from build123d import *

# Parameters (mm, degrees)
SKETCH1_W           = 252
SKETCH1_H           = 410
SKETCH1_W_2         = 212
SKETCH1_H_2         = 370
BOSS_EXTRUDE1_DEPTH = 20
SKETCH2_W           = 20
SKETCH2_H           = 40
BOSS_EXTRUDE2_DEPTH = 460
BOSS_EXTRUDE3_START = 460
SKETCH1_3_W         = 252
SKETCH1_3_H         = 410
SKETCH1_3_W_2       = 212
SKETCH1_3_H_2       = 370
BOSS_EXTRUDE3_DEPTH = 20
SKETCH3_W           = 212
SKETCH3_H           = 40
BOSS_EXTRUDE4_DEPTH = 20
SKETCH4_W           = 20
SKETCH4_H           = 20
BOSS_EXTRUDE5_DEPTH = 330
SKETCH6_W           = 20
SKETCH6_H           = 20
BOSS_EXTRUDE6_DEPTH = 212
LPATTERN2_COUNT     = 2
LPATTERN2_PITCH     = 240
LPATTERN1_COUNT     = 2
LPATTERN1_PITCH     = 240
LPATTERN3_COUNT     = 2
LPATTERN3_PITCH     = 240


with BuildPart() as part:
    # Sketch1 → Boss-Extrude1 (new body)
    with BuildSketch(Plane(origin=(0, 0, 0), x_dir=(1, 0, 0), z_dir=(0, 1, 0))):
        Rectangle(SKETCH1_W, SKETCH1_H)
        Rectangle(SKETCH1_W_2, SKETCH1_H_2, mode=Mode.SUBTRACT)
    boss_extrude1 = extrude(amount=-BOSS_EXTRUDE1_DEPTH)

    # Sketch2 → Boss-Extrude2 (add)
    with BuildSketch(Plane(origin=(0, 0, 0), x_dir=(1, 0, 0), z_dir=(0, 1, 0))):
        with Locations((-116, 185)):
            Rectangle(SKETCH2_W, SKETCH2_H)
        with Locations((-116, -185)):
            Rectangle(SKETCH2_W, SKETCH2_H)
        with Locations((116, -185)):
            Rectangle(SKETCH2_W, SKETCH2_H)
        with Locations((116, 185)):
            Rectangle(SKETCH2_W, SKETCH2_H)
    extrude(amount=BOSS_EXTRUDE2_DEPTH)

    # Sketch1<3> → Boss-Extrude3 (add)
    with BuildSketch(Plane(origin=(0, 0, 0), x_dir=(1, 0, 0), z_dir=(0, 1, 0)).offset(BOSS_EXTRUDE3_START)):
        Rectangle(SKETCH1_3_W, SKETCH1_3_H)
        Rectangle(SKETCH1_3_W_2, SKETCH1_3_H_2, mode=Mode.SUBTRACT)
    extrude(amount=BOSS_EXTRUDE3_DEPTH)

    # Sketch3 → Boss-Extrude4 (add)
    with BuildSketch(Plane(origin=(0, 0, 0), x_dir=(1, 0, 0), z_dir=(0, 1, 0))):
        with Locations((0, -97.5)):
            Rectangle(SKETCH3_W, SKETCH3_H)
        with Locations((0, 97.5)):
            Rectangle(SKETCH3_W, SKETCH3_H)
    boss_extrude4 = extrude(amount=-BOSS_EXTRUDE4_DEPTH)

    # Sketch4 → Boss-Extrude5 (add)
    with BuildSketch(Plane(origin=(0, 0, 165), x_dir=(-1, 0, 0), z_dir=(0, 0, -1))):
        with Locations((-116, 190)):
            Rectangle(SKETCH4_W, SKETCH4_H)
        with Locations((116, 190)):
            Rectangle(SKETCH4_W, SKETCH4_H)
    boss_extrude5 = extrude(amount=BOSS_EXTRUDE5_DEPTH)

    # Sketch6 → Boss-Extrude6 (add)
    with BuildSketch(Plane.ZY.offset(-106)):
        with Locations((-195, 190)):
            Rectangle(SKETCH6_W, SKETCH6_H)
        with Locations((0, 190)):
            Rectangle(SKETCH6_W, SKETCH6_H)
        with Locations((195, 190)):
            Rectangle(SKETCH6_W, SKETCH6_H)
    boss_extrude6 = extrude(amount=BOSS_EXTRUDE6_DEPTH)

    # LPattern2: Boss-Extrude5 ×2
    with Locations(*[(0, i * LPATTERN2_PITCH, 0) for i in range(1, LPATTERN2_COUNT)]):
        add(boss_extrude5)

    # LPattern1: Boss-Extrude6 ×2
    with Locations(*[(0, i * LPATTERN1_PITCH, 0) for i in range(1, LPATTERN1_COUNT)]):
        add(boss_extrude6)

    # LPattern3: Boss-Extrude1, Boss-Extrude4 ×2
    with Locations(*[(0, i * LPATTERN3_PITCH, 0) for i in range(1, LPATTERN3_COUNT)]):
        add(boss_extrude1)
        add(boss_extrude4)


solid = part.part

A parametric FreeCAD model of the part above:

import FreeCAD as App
import Part
import Sketcher

doc = App.newDocument("Part")
params = doc.addObject("Spreadsheet::Sheet", "Params")
for row, (alias, value) in enumerate([
    ("sketch1_width", "252 mm"),
    ("sketch1_width2", "212 mm"),
    ("sketch1_height", "410 mm"),
    ("sketch1_height2", "370 mm"),
    ("pad1_length", "20 mm"),
    ("sketch2_width", "20 mm"),
    ("sketch2_height", "40 mm"),
    ("pad2_length", "460 mm"),
    ("sketch3_width", "252 mm"),
    ("sketch3_width2", "212 mm"),
    ("sketch3_height", "410 mm"),
    ("sketch3_height2", "370 mm"),
    ("pad3_length", "20 mm"),
    ("sketch4_width", "212 mm"),
    ("sketch4_height", "40 mm"),
    ("pad4_length", "20 mm"),
    ("sketch5_width", "20 mm"),
    ("pad5_length", "330 mm"),
    ("sketch6_width", "20 mm"),
    ("pad6_length", "212 mm"),
    ("linearpattern_pitch", "240 mm"),
    ("linearpattern2_pitch", "240 mm"),
    ("linearpattern3_pitch", "240 mm"),
], start=1):
    params.set(f"A{row}", alias)
    params.set(f"B{row}", "=" + value)
    params.setAlias(f"B{row}", alias)

body = doc.addObject("PartDesign::Body", "Body")

# Sketch on XZ plane
sketch1 = doc.addObject("Sketcher::SketchObject", "Sketch")
body.addObject(sketch1)
sketch1.AttachmentSupport = (doc.XZ_Plane, [""])
sketch1.MapMode = "FlatFace"
sketch1.addGeometry(Part.LineSegment(App.Vector(-126, -205, 0), App.Vector(-126, 205, 0)), False)
sketch1.addGeometry(Part.LineSegment(App.Vector(-126, 205, 0), App.Vector(126, 205, 0)), False)
sketch1.addGeometry(Part.LineSegment(App.Vector(126, 205, 0), App.Vector(126, -205, 0)), False)
sketch1.addGeometry(Part.LineSegment(App.Vector(126, -205, 0), App.Vector(-126, -205, 0)), False)
sketch1.addGeometry(Part.LineSegment(App.Vector(106, 185, 0), App.Vector(-106, 185, 0)), False)
sketch1.addGeometry(Part.LineSegment(App.Vector(-106, 185, 0), App.Vector(-106, -185, 0)), False)
sketch1.addGeometry(Part.LineSegment(App.Vector(-106, -185, 0), App.Vector(106, -185, 0)), False)
sketch1.addGeometry(Part.LineSegment(App.Vector(106, -185, 0), App.Vector(106, 185, 0)), False)
sketch1.addConstraint(Sketcher.Constraint("Coincident", 0, 2, 1, 1))
sketch1.addConstraint(Sketcher.Constraint("Coincident", 1, 2, 2, 1))
sketch1.addConstraint(Sketcher.Constraint("Coincident", 2, 2, 3, 1))
sketch1.addConstraint(Sketcher.Constraint("Coincident", 3, 2, 0, 1))
sketch1.addConstraint(Sketcher.Constraint("Coincident", 4, 2, 5, 1))
sketch1.addConstraint(Sketcher.Constraint("Coincident", 5, 2, 6, 1))
sketch1.addConstraint(Sketcher.Constraint("Coincident", 6, 2, 7, 1))
sketch1.addConstraint(Sketcher.Constraint("Coincident", 7, 2, 4, 1))
sketch1.addConstraint(Sketcher.Constraint("Vertical", 0))
sketch1.addConstraint(Sketcher.Constraint("Horizontal", 1))
sketch1.addConstraint(Sketcher.Constraint("Vertical", 2))
sketch1.addConstraint(Sketcher.Constraint("Horizontal", 3))
sketch1.addConstraint(Sketcher.Constraint("Horizontal", 4))
sketch1.addConstraint(Sketcher.Constraint("Vertical", 5))
sketch1.addConstraint(Sketcher.Constraint("Horizontal", 6))
sketch1.addConstraint(Sketcher.Constraint("Vertical", 7))
sketch1.addConstraint(Sketcher.Constraint("Symmetric", 0, 2, 2, 2, -1, 1))
sketch1.addConstraint(Sketcher.Constraint("Symmetric", 4, 2, 6, 2, -1, 1))
sketch1.addConstraint(Sketcher.Constraint("DistanceX", 1, 1, 1, 2, 252.0))
sketch1.addConstraint(Sketcher.Constraint("DistanceX", 4, 2, 4, 1, 212.0))
sketch1.addConstraint(Sketcher.Constraint("DistanceY", 0, 1, 0, 2, 410.0))
sketch1.addConstraint(Sketcher.Constraint("DistanceY", 5, 2, 5, 1, 370.0))
sketch1.setExpression("Constraints[18]", "Params.sketch1_width")
sketch1.setExpression("Constraints[19]", "Params.sketch1_width2")
sketch1.setExpression("Constraints[20]", "Params.sketch1_height")
sketch1.setExpression("Constraints[21]", "Params.sketch1_height2")
pad1 = doc.addObject("PartDesign::Pad", "Pad")
body.addObject(pad1)
pad1.Profile = sketch1
pad1.setExpression("Length", "Params.pad1_length")

# Sketch on XZ plane
sketch2 = doc.addObject("Sketcher::SketchObject", "Sketch001")
body.addObject(sketch2)
sketch2.AttachmentSupport = (doc.XZ_Plane, [""])
sketch2.MapMode = "FlatFace"
sketch2.addGeometry(Part.LineSegment(App.Vector(-126, -205, 0), App.Vector(-126, -165, 0)), False)
sketch2.addGeometry(Part.LineSegment(App.Vector(-126, -165, 0), App.Vector(-106, -165, 0)), False)
sketch2.addGeometry(Part.LineSegment(App.Vector(-106, -165, 0), App.Vector(-106, -205, 0)), False)
sketch2.addGeometry(Part.LineSegment(App.Vector(-106, -205, 0), App.Vector(-126, -205, 0)), False)
sketch2.addGeometry(Part.LineSegment(App.Vector(-126, 165, 0), App.Vector(-126, 205, 0)), False)
sketch2.addGeometry(Part.LineSegment(App.Vector(-126, 205, 0), App.Vector(-106, 205, 0)), False)
sketch2.addGeometry(Part.LineSegment(App.Vector(-106, 205, 0), App.Vector(-106, 165, 0)), False)
sketch2.addGeometry(Part.LineSegment(App.Vector(-106, 165, 0), App.Vector(-126, 165, 0)), False)
sketch2.addGeometry(Part.LineSegment(App.Vector(106, 165, 0), App.Vector(106, 205, 0)), False)
sketch2.addGeometry(Part.LineSegment(App.Vector(106, 205, 0), App.Vector(126, 205, 0)), False)
sketch2.addGeometry(Part.LineSegment(App.Vector(126, 205, 0), App.Vector(126, 165, 0)), False)
sketch2.addGeometry(Part.LineSegment(App.Vector(126, 165, 0), App.Vector(106, 165, 0)), False)
sketch2.addGeometry(Part.LineSegment(App.Vector(106, -205, 0), App.Vector(106, -165, 0)), False)
sketch2.addGeometry(Part.LineSegment(App.Vector(106, -165, 0), App.Vector(126, -165, 0)), False)
sketch2.addGeometry(Part.LineSegment(App.Vector(126, -165, 0), App.Vector(126, -205, 0)), False)
sketch2.addGeometry(Part.LineSegment(App.Vector(126, -205, 0), App.Vector(106, -205, 0)), False)
sketch2.addConstraint(Sketcher.Constraint("Coincident", 0, 2, 1, 1))
sketch2.addConstraint(Sketcher.Constraint("Coincident", 1, 2, 2, 1))
sketch2.addConstraint(Sketcher.Constraint("Coincident", 2, 2, 3, 1))
sketch2.addConstraint(Sketcher.Constraint("Coincident", 3, 2, 0, 1))
sketch2.addConstraint(Sketcher.Constraint("Coincident", 4, 2, 5, 1))
sketch2.addConstraint(Sketcher.Constraint("Coincident", 5, 2, 6, 1))
sketch2.addConstraint(Sketcher.Constraint("Coincident", 6, 2, 7, 1))
sketch2.addConstraint(Sketcher.Constraint("Coincident", 7, 2, 4, 1))
sketch2.addConstraint(Sketcher.Constraint("Coincident", 8, 2, 9, 1))
sketch2.addConstraint(Sketcher.Constraint("Coincident", 9, 2, 10, 1))
sketch2.addConstraint(Sketcher.Constraint("Coincident", 10, 2, 11, 1))
sketch2.addConstraint(Sketcher.Constraint("Coincident", 11, 2, 8, 1))
sketch2.addConstraint(Sketcher.Constraint("Coincident", 12, 2, 13, 1))
sketch2.addConstraint(Sketcher.Constraint("Coincident", 13, 2, 14, 1))
sketch2.addConstraint(Sketcher.Constraint("Coincident", 14, 2, 15, 1))
sketch2.addConstraint(Sketcher.Constraint("Coincident", 15, 2, 12, 1))
sketch2.addConstraint(Sketcher.Constraint("Vertical", 0))
sketch2.addConstraint(Sketcher.Constraint("Horizontal", 1))
sketch2.addConstraint(Sketcher.Constraint("Vertical", 2))
sketch2.addConstraint(Sketcher.Constraint("Horizontal", 3))
sketch2.addConstraint(Sketcher.Constraint("Vertical", 4))
sketch2.addConstraint(Sketcher.Constraint("Horizontal", 5))
sketch2.addConstraint(Sketcher.Constraint("Vertical", 6))
sketch2.addConstraint(Sketcher.Constraint("Horizontal", 7))
sketch2.addConstraint(Sketcher.Constraint("Vertical", 8))
sketch2.addConstraint(Sketcher.Constraint("Horizontal", 9))
sketch2.addConstraint(Sketcher.Constraint("Vertical", 10))
sketch2.addConstraint(Sketcher.Constraint("Horizontal", 11))
sketch2.addConstraint(Sketcher.Constraint("Vertical", 12))
sketch2.addConstraint(Sketcher.Constraint("Horizontal", 13))
sketch2.addConstraint(Sketcher.Constraint("Vertical", 14))
sketch2.addConstraint(Sketcher.Constraint("Horizontal", 15))
sketch2.addConstraint(Sketcher.Constraint("Symmetric", 2, 2, 8, 2, -1, 1))
sketch2.addConstraint(Sketcher.Constraint("Symmetric", 0, 2, 10, 2, -1, 1))
sketch2.addConstraint(Sketcher.Constraint("Symmetric", 6, 2, 12, 2, -1, 1))
sketch2.addConstraint(Sketcher.Constraint("Symmetric", 4, 2, 14, 2, -1, 1))
sketch2.addConstraint(Sketcher.Constraint("Symmetric", 5, 2, 8, 2, -2))
sketch2.addConstraint(Sketcher.Constraint("Symmetric", 7, 2, 10, 2, -2))
sketch2.addConstraint(Sketcher.Constraint("DistanceX", 1, 1, 1, 2, 20.0))
sketch2.addConstraint(Sketcher.Constraint("DistanceY", 0, 1, 0, 2, 40.0))
sketch2.addConstraint(Sketcher.Constraint("DistanceX", 0, 2, -1, 1, 126.0))
sketch2.addConstraint(Sketcher.Constraint("DistanceY", 0, 2, -1, 1, 165.0))
sketch2.setExpression("Constraints[38]", "Params.sketch2_width")
sketch2.setExpression("Constraints[39]", "Params.sketch2_height")
pad2 = doc.addObject("PartDesign::Pad", "Pad001")
body.addObject(pad2)
pad2.Profile = sketch2
pad2.setExpression("Length", "Params.pad2_length")
pad2.Reversed = True

# Sketch on XZ plane
sketch3 = doc.addObject("Sketcher::SketchObject", "Sketch002")
body.addObject(sketch3)
sketch3.AttachmentSupport = (doc.XZ_Plane, [""])
sketch3.MapMode = "FlatFace"
sketch3.AttachmentOffset = App.Placement(App.Vector(0, 0, -460), App.Rotation())
sketch3.addGeometry(Part.LineSegment(App.Vector(-126, -205, 0), App.Vector(-126, 205, 0)), False)
sketch3.addGeometry(Part.LineSegment(App.Vector(-126, 205, 0), App.Vector(126, 205, 0)), False)
sketch3.addGeometry(Part.LineSegment(App.Vector(126, 205, 0), App.Vector(126, -205, 0)), False)
sketch3.addGeometry(Part.LineSegment(App.Vector(126, -205, 0), App.Vector(-126, -205, 0)), False)
sketch3.addGeometry(Part.LineSegment(App.Vector(106, 185, 0), App.Vector(-106, 185, 0)), False)
sketch3.addGeometry(Part.LineSegment(App.Vector(-106, 185, 0), App.Vector(-106, -185, 0)), False)
sketch3.addGeometry(Part.LineSegment(App.Vector(-106, -185, 0), App.Vector(106, -185, 0)), False)
sketch3.addGeometry(Part.LineSegment(App.Vector(106, -185, 0), App.Vector(106, 185, 0)), False)
sketch3.addConstraint(Sketcher.Constraint("Coincident", 0, 2, 1, 1))
sketch3.addConstraint(Sketcher.Constraint("Coincident", 1, 2, 2, 1))
sketch3.addConstraint(Sketcher.Constraint("Coincident", 2, 2, 3, 1))
sketch3.addConstraint(Sketcher.Constraint("Coincident", 3, 2, 0, 1))
sketch3.addConstraint(Sketcher.Constraint("Coincident", 4, 2, 5, 1))
sketch3.addConstraint(Sketcher.Constraint("Coincident", 5, 2, 6, 1))
sketch3.addConstraint(Sketcher.Constraint("Coincident", 6, 2, 7, 1))
sketch3.addConstraint(Sketcher.Constraint("Coincident", 7, 2, 4, 1))
sketch3.addConstraint(Sketcher.Constraint("Vertical", 0))
sketch3.addConstraint(Sketcher.Constraint("Horizontal", 1))
sketch3.addConstraint(Sketcher.Constraint("Vertical", 2))
sketch3.addConstraint(Sketcher.Constraint("Horizontal", 3))
sketch3.addConstraint(Sketcher.Constraint("Horizontal", 4))
sketch3.addConstraint(Sketcher.Constraint("Vertical", 5))
sketch3.addConstraint(Sketcher.Constraint("Horizontal", 6))
sketch3.addConstraint(Sketcher.Constraint("Vertical", 7))
sketch3.addConstraint(Sketcher.Constraint("Symmetric", 0, 2, 2, 2, -1, 1))
sketch3.addConstraint(Sketcher.Constraint("Symmetric", 4, 2, 6, 2, -1, 1))
sketch3.addConstraint(Sketcher.Constraint("DistanceX", 1, 1, 1, 2, 252.0))
sketch3.addConstraint(Sketcher.Constraint("DistanceX", 4, 2, 4, 1, 212.0))
sketch3.addConstraint(Sketcher.Constraint("DistanceY", 0, 1, 0, 2, 410.0))
sketch3.addConstraint(Sketcher.Constraint("DistanceY", 5, 2, 5, 1, 370.0))
sketch3.setExpression("Constraints[18]", "Params.sketch3_width")
sketch3.setExpression("Constraints[19]", "Params.sketch3_width2")
sketch3.setExpression("Constraints[20]", "Params.sketch3_height")
sketch3.setExpression("Constraints[21]", "Params.sketch3_height2")
pad3 = doc.addObject("PartDesign::Pad", "Pad002")
body.addObject(pad3)
pad3.Profile = sketch3
pad3.setExpression("Length", "Params.pad3_length")
pad3.Reversed = True

# Sketch on XZ plane
sketch4 = doc.addObject("Sketcher::SketchObject", "Sketch003")
body.addObject(sketch4)
sketch4.AttachmentSupport = (doc.XZ_Plane, [""])
sketch4.MapMode = "FlatFace"
sketch4.addGeometry(Part.LineSegment(App.Vector(-106, 77.5, 0), App.Vector(-106, 117.5, 0)), False)
sketch4.addGeometry(Part.LineSegment(App.Vector(-106, 117.5, 0), App.Vector(106, 117.5, 0)), False)
sketch4.addGeometry(Part.LineSegment(App.Vector(106, 117.5, 0), App.Vector(106, 77.5, 0)), False)
sketch4.addGeometry(Part.LineSegment(App.Vector(106, 77.5, 0), App.Vector(-106, 77.5, 0)), False)
sketch4.addGeometry(Part.LineSegment(App.Vector(-106, -117.5, 0), App.Vector(-106, -77.5, 0)), False)
sketch4.addGeometry(Part.LineSegment(App.Vector(-106, -77.5, 0), App.Vector(106, -77.5, 0)), False)
sketch4.addGeometry(Part.LineSegment(App.Vector(106, -77.5, 0), App.Vector(106, -117.5, 0)), False)
sketch4.addGeometry(Part.LineSegment(App.Vector(106, -117.5, 0), App.Vector(-106, -117.5, 0)), False)
sketch4.addConstraint(Sketcher.Constraint("Coincident", 0, 2, 1, 1))
sketch4.addConstraint(Sketcher.Constraint("Coincident", 1, 2, 2, 1))
sketch4.addConstraint(Sketcher.Constraint("Coincident", 2, 2, 3, 1))
sketch4.addConstraint(Sketcher.Constraint("Coincident", 3, 2, 0, 1))
sketch4.addConstraint(Sketcher.Constraint("Coincident", 4, 2, 5, 1))
sketch4.addConstraint(Sketcher.Constraint("Coincident", 5, 2, 6, 1))
sketch4.addConstraint(Sketcher.Constraint("Coincident", 6, 2, 7, 1))
sketch4.addConstraint(Sketcher.Constraint("Coincident", 7, 2, 4, 1))
sketch4.addConstraint(Sketcher.Constraint("Vertical", 0))
sketch4.addConstraint(Sketcher.Constraint("Horizontal", 1))
sketch4.addConstraint(Sketcher.Constraint("Vertical", 2))
sketch4.addConstraint(Sketcher.Constraint("Horizontal", 3))
sketch4.addConstraint(Sketcher.Constraint("Vertical", 4))
sketch4.addConstraint(Sketcher.Constraint("Horizontal", 5))
sketch4.addConstraint(Sketcher.Constraint("Vertical", 6))
sketch4.addConstraint(Sketcher.Constraint("Horizontal", 7))
sketch4.addConstraint(Sketcher.Constraint("Symmetric", 2, 2, 4, 2, -1, 1))
sketch4.addConstraint(Sketcher.Constraint("Symmetric", 0, 2, 6, 2, -1, 1))
sketch4.addConstraint(Sketcher.Constraint("Vertical", 3, 2, 4, 2))
sketch4.addConstraint(Sketcher.Constraint("DistanceX", 1, 1, 1, 2, 212.0))
sketch4.addConstraint(Sketcher.Constraint("DistanceY", 0, 1, 0, 2, 40.0))
sketch4.addConstraint(Sketcher.Constraint("DistanceY", 4, 2, 3, 2, 155.0))
sketch4.setExpression("Constraints[19]", "Params.sketch4_width")
sketch4.setExpression("Constraints[20]", "Params.sketch4_height")
pad4 = doc.addObject("PartDesign::Pad", "Pad003")
body.addObject(pad4)
pad4.Profile = sketch4
pad4.setExpression("Length", "Params.pad4_length")

# Sketch on XY plane
sketch5 = doc.addObject("Sketcher::SketchObject", "Sketch004")
body.addObject(sketch5)
sketch5.AttachmentSupport = (doc.XY_Plane, [""])
sketch5.MapMode = "FlatFace"
sketch5.AttachmentOffset = App.Placement(App.Vector(0, 0, 165), App.Rotation())
sketch5.addGeometry(Part.LineSegment(App.Vector(126, 200, 0), App.Vector(126, 180, 0)), False)
sketch5.addGeometry(Part.LineSegment(App.Vector(126, 180, 0), App.Vector(106, 180, 0)), False)
sketch5.addGeometry(Part.LineSegment(App.Vector(106, 180, 0), App.Vector(106, 200, 0)), False)
sketch5.addGeometry(Part.LineSegment(App.Vector(106, 200, 0), App.Vector(126, 200, 0)), False)
sketch5.addGeometry(Part.LineSegment(App.Vector(-106, 200, 0), App.Vector(-106, 180, 0)), False)
sketch5.addGeometry(Part.LineSegment(App.Vector(-106, 180, 0), App.Vector(-126, 180, 0)), False)
sketch5.addGeometry(Part.LineSegment(App.Vector(-126, 180, 0), App.Vector(-126, 200, 0)), False)
sketch5.addGeometry(Part.LineSegment(App.Vector(-126, 200, 0), App.Vector(-106, 200, 0)), False)
sketch5.addConstraint(Sketcher.Constraint("Coincident", 0, 2, 1, 1))
sketch5.addConstraint(Sketcher.Constraint("Coincident", 1, 2, 2, 1))
sketch5.addConstraint(Sketcher.Constraint("Coincident", 2, 2, 3, 1))
sketch5.addConstraint(Sketcher.Constraint("Coincident", 3, 2, 0, 1))
sketch5.addConstraint(Sketcher.Constraint("Coincident", 4, 2, 5, 1))
sketch5.addConstraint(Sketcher.Constraint("Coincident", 5, 2, 6, 1))
sketch5.addConstraint(Sketcher.Constraint("Coincident", 6, 2, 7, 1))
sketch5.addConstraint(Sketcher.Constraint("Coincident", 7, 2, 4, 1))
sketch5.addConstraint(Sketcher.Constraint("Vertical", 0))
sketch5.addConstraint(Sketcher.Constraint("Horizontal", 1))
sketch5.addConstraint(Sketcher.Constraint("Vertical", 2))
sketch5.addConstraint(Sketcher.Constraint("Horizontal", 3))
sketch5.addConstraint(Sketcher.Constraint("Vertical", 4))
sketch5.addConstraint(Sketcher.Constraint("Horizontal", 5))
sketch5.addConstraint(Sketcher.Constraint("Vertical", 6))
sketch5.addConstraint(Sketcher.Constraint("Horizontal", 7))
sketch5.addConstraint(Sketcher.Constraint("Symmetric", 1, 2, 4, 2, -2))
sketch5.addConstraint(Sketcher.Constraint("Symmetric", 3, 2, 6, 2, -2))
sketch5.addConstraint(Sketcher.Constraint("Equal", 7, 0))
sketch5.addConstraint(Sketcher.Constraint("DistanceX", 1, 2, 1, 1, 20.0))
sketch5.addConstraint(Sketcher.Constraint("DistanceX", -1, 1, 0, 2, 126.0))
sketch5.addConstraint(Sketcher.Constraint("DistanceY", -1, 1, 0, 2, 180.0))
sketch5.setExpression("Constraints[19]", "Params.sketch5_width")
pad5 = doc.addObject("PartDesign::Pad", "Pad004")
body.addObject(pad5)
pad5.Profile = sketch5
pad5.setExpression("Length", "Params.pad5_length")
pad5.Reversed = True

# Sketch on YZ plane
sketch6 = doc.addObject("Sketcher::SketchObject", "Sketch005")
body.addObject(sketch6)
sketch6.AttachmentSupport = (doc.YZ_Plane, [""])
sketch6.MapMode = "FlatFace"
sketch6.AttachmentOffset = App.Placement(App.Vector(0, 0, 106), App.Rotation())
sketch6.addGeometry(Part.LineSegment(App.Vector(200, -205, 0), App.Vector(180, -205, 0)), False)
sketch6.addGeometry(Part.LineSegment(App.Vector(180, -205, 0), App.Vector(180, -185, 0)), False)
sketch6.addGeometry(Part.LineSegment(App.Vector(180, -185, 0), App.Vector(200, -185, 0)), False)
sketch6.addGeometry(Part.LineSegment(App.Vector(200, -185, 0), App.Vector(200, -205, 0)), False)
sketch6.addGeometry(Part.LineSegment(App.Vector(200, -10, 0), App.Vector(180, -10, 0)), False)
sketch6.addGeometry(Part.LineSegment(App.Vector(180, -10, 0), App.Vector(180, 10, 0)), False)
sketch6.addGeometry(Part.LineSegment(App.Vector(180, 10, 0), App.Vector(200, 10, 0)), False)
sketch6.addGeometry(Part.LineSegment(App.Vector(200, 10, 0), App.Vector(200, -10, 0)), False)
sketch6.addGeometry(Part.LineSegment(App.Vector(200, 185, 0), App.Vector(180, 185, 0)), False)
sketch6.addGeometry(Part.LineSegment(App.Vector(180, 185, 0), App.Vector(180, 205, 0)), False)
sketch6.addGeometry(Part.LineSegment(App.Vector(180, 205, 0), App.Vector(200, 205, 0)), False)
sketch6.addGeometry(Part.LineSegment(App.Vector(200, 205, 0), App.Vector(200, 185, 0)), False)
sketch6.addConstraint(Sketcher.Constraint("Coincident", 0, 2, 1, 1))
sketch6.addConstraint(Sketcher.Constraint("Coincident", 1, 2, 2, 1))
sketch6.addConstraint(Sketcher.Constraint("Coincident", 2, 2, 3, 1))
sketch6.addConstraint(Sketcher.Constraint("Coincident", 3, 2, 0, 1))
sketch6.addConstraint(Sketcher.Constraint("Coincident", 4, 2, 5, 1))
sketch6.addConstraint(Sketcher.Constraint("Coincident", 5, 2, 6, 1))
sketch6.addConstraint(Sketcher.Constraint("Coincident", 6, 2, 7, 1))
sketch6.addConstraint(Sketcher.Constraint("Coincident", 7, 2, 4, 1))
sketch6.addConstraint(Sketcher.Constraint("Coincident", 8, 2, 9, 1))
sketch6.addConstraint(Sketcher.Constraint("Coincident", 9, 2, 10, 1))
sketch6.addConstraint(Sketcher.Constraint("Coincident", 10, 2, 11, 1))
sketch6.addConstraint(Sketcher.Constraint("Coincident", 11, 2, 8, 1))
sketch6.addConstraint(Sketcher.Constraint("Horizontal", 0))
sketch6.addConstraint(Sketcher.Constraint("Vertical", 1))
sketch6.addConstraint(Sketcher.Constraint("Horizontal", 2))
sketch6.addConstraint(Sketcher.Constraint("Vertical", 3))
sketch6.addConstraint(Sketcher.Constraint("Horizontal", 4))
sketch6.addConstraint(Sketcher.Constraint("Vertical", 5))
sketch6.addConstraint(Sketcher.Constraint("Horizontal", 6))
sketch6.addConstraint(Sketcher.Constraint("Vertical", 7))
sketch6.addConstraint(Sketcher.Constraint("Horizontal", 8))
sketch6.addConstraint(Sketcher.Constraint("Vertical", 9))
sketch6.addConstraint(Sketcher.Constraint("Horizontal", 10))
sketch6.addConstraint(Sketcher.Constraint("Vertical", 11))
sketch6.addConstraint(Sketcher.Constraint("Symmetric", 1, 2, 8, 2, -1))
sketch6.addConstraint(Sketcher.Constraint("Symmetric", 3, 2, 10, 2, -1))
sketch6.addConstraint(Sketcher.Constraint("Vertical", 1, 2, 4, 2))
sketch6.addConstraint(Sketcher.Constraint("Vertical", 3, 2, 6, 2))
sketch6.addConstraint(Sketcher.Constraint("Equal", 10, 1))
sketch6.addConstraint(Sketcher.Constraint("Equal", 3, 5))
sketch6.addConstraint(Sketcher.Constraint("DistanceX", 0, 2, 0, 1, 20.0))
sketch6.addConstraint(Sketcher.Constraint("DistanceX", -1, 1, 0, 2, 180.0))
sketch6.addConstraint(Sketcher.Constraint("DistanceY", 0, 2, -1, 1, 205.0))
sketch6.addConstraint(Sketcher.Constraint("DistanceY", 4, 2, -1, 1, 10.0))
sketch6.setExpression("Constraints[30]", "Params.sketch6_width")
pad6 = doc.addObject("PartDesign::Pad", "Pad005")
body.addObject(pad6)
pad6.Profile = sketch6
pad6.setExpression("Length", "Params.pad6_length")
pad6.Reversed = True
doc.recompute()

linearpattern = doc.addObject("PartDesign::LinearPattern", "LinearPattern")
body.addObject(linearpattern)
linearpattern.Originals = [pad5]
linearpattern.Direction = (doc.Y_Axis, [""])
linearpattern.Mode = "offset"
linearpattern.setExpression("Offset", "Params.linearpattern_pitch")
linearpattern.Occurrences = 2
body.Tip = linearpattern
doc.recompute()

linearpattern2 = doc.addObject("PartDesign::LinearPattern", "LinearPattern001")
body.addObject(linearpattern2)
linearpattern2.Originals = [pad6]
linearpattern2.Direction = (doc.Y_Axis, [""])
linearpattern2.Mode = "offset"
linearpattern2.setExpression("Offset", "Params.linearpattern2_pitch")
linearpattern2.Occurrences = 2
body.Tip = linearpattern2
doc.recompute()

linearpattern3 = doc.addObject("PartDesign::LinearPattern", "LinearPattern002")
body.addObject(linearpattern3)
linearpattern3.Originals = [pad1, pad4]
linearpattern3.Direction = (doc.Y_Axis, [""])
linearpattern3.Mode = "offset"
linearpattern3.setExpression("Offset", "Params.linearpattern3_pitch")
linearpattern3.Occurrences = 2
body.Tip = linearpattern3

doc.recompute()
